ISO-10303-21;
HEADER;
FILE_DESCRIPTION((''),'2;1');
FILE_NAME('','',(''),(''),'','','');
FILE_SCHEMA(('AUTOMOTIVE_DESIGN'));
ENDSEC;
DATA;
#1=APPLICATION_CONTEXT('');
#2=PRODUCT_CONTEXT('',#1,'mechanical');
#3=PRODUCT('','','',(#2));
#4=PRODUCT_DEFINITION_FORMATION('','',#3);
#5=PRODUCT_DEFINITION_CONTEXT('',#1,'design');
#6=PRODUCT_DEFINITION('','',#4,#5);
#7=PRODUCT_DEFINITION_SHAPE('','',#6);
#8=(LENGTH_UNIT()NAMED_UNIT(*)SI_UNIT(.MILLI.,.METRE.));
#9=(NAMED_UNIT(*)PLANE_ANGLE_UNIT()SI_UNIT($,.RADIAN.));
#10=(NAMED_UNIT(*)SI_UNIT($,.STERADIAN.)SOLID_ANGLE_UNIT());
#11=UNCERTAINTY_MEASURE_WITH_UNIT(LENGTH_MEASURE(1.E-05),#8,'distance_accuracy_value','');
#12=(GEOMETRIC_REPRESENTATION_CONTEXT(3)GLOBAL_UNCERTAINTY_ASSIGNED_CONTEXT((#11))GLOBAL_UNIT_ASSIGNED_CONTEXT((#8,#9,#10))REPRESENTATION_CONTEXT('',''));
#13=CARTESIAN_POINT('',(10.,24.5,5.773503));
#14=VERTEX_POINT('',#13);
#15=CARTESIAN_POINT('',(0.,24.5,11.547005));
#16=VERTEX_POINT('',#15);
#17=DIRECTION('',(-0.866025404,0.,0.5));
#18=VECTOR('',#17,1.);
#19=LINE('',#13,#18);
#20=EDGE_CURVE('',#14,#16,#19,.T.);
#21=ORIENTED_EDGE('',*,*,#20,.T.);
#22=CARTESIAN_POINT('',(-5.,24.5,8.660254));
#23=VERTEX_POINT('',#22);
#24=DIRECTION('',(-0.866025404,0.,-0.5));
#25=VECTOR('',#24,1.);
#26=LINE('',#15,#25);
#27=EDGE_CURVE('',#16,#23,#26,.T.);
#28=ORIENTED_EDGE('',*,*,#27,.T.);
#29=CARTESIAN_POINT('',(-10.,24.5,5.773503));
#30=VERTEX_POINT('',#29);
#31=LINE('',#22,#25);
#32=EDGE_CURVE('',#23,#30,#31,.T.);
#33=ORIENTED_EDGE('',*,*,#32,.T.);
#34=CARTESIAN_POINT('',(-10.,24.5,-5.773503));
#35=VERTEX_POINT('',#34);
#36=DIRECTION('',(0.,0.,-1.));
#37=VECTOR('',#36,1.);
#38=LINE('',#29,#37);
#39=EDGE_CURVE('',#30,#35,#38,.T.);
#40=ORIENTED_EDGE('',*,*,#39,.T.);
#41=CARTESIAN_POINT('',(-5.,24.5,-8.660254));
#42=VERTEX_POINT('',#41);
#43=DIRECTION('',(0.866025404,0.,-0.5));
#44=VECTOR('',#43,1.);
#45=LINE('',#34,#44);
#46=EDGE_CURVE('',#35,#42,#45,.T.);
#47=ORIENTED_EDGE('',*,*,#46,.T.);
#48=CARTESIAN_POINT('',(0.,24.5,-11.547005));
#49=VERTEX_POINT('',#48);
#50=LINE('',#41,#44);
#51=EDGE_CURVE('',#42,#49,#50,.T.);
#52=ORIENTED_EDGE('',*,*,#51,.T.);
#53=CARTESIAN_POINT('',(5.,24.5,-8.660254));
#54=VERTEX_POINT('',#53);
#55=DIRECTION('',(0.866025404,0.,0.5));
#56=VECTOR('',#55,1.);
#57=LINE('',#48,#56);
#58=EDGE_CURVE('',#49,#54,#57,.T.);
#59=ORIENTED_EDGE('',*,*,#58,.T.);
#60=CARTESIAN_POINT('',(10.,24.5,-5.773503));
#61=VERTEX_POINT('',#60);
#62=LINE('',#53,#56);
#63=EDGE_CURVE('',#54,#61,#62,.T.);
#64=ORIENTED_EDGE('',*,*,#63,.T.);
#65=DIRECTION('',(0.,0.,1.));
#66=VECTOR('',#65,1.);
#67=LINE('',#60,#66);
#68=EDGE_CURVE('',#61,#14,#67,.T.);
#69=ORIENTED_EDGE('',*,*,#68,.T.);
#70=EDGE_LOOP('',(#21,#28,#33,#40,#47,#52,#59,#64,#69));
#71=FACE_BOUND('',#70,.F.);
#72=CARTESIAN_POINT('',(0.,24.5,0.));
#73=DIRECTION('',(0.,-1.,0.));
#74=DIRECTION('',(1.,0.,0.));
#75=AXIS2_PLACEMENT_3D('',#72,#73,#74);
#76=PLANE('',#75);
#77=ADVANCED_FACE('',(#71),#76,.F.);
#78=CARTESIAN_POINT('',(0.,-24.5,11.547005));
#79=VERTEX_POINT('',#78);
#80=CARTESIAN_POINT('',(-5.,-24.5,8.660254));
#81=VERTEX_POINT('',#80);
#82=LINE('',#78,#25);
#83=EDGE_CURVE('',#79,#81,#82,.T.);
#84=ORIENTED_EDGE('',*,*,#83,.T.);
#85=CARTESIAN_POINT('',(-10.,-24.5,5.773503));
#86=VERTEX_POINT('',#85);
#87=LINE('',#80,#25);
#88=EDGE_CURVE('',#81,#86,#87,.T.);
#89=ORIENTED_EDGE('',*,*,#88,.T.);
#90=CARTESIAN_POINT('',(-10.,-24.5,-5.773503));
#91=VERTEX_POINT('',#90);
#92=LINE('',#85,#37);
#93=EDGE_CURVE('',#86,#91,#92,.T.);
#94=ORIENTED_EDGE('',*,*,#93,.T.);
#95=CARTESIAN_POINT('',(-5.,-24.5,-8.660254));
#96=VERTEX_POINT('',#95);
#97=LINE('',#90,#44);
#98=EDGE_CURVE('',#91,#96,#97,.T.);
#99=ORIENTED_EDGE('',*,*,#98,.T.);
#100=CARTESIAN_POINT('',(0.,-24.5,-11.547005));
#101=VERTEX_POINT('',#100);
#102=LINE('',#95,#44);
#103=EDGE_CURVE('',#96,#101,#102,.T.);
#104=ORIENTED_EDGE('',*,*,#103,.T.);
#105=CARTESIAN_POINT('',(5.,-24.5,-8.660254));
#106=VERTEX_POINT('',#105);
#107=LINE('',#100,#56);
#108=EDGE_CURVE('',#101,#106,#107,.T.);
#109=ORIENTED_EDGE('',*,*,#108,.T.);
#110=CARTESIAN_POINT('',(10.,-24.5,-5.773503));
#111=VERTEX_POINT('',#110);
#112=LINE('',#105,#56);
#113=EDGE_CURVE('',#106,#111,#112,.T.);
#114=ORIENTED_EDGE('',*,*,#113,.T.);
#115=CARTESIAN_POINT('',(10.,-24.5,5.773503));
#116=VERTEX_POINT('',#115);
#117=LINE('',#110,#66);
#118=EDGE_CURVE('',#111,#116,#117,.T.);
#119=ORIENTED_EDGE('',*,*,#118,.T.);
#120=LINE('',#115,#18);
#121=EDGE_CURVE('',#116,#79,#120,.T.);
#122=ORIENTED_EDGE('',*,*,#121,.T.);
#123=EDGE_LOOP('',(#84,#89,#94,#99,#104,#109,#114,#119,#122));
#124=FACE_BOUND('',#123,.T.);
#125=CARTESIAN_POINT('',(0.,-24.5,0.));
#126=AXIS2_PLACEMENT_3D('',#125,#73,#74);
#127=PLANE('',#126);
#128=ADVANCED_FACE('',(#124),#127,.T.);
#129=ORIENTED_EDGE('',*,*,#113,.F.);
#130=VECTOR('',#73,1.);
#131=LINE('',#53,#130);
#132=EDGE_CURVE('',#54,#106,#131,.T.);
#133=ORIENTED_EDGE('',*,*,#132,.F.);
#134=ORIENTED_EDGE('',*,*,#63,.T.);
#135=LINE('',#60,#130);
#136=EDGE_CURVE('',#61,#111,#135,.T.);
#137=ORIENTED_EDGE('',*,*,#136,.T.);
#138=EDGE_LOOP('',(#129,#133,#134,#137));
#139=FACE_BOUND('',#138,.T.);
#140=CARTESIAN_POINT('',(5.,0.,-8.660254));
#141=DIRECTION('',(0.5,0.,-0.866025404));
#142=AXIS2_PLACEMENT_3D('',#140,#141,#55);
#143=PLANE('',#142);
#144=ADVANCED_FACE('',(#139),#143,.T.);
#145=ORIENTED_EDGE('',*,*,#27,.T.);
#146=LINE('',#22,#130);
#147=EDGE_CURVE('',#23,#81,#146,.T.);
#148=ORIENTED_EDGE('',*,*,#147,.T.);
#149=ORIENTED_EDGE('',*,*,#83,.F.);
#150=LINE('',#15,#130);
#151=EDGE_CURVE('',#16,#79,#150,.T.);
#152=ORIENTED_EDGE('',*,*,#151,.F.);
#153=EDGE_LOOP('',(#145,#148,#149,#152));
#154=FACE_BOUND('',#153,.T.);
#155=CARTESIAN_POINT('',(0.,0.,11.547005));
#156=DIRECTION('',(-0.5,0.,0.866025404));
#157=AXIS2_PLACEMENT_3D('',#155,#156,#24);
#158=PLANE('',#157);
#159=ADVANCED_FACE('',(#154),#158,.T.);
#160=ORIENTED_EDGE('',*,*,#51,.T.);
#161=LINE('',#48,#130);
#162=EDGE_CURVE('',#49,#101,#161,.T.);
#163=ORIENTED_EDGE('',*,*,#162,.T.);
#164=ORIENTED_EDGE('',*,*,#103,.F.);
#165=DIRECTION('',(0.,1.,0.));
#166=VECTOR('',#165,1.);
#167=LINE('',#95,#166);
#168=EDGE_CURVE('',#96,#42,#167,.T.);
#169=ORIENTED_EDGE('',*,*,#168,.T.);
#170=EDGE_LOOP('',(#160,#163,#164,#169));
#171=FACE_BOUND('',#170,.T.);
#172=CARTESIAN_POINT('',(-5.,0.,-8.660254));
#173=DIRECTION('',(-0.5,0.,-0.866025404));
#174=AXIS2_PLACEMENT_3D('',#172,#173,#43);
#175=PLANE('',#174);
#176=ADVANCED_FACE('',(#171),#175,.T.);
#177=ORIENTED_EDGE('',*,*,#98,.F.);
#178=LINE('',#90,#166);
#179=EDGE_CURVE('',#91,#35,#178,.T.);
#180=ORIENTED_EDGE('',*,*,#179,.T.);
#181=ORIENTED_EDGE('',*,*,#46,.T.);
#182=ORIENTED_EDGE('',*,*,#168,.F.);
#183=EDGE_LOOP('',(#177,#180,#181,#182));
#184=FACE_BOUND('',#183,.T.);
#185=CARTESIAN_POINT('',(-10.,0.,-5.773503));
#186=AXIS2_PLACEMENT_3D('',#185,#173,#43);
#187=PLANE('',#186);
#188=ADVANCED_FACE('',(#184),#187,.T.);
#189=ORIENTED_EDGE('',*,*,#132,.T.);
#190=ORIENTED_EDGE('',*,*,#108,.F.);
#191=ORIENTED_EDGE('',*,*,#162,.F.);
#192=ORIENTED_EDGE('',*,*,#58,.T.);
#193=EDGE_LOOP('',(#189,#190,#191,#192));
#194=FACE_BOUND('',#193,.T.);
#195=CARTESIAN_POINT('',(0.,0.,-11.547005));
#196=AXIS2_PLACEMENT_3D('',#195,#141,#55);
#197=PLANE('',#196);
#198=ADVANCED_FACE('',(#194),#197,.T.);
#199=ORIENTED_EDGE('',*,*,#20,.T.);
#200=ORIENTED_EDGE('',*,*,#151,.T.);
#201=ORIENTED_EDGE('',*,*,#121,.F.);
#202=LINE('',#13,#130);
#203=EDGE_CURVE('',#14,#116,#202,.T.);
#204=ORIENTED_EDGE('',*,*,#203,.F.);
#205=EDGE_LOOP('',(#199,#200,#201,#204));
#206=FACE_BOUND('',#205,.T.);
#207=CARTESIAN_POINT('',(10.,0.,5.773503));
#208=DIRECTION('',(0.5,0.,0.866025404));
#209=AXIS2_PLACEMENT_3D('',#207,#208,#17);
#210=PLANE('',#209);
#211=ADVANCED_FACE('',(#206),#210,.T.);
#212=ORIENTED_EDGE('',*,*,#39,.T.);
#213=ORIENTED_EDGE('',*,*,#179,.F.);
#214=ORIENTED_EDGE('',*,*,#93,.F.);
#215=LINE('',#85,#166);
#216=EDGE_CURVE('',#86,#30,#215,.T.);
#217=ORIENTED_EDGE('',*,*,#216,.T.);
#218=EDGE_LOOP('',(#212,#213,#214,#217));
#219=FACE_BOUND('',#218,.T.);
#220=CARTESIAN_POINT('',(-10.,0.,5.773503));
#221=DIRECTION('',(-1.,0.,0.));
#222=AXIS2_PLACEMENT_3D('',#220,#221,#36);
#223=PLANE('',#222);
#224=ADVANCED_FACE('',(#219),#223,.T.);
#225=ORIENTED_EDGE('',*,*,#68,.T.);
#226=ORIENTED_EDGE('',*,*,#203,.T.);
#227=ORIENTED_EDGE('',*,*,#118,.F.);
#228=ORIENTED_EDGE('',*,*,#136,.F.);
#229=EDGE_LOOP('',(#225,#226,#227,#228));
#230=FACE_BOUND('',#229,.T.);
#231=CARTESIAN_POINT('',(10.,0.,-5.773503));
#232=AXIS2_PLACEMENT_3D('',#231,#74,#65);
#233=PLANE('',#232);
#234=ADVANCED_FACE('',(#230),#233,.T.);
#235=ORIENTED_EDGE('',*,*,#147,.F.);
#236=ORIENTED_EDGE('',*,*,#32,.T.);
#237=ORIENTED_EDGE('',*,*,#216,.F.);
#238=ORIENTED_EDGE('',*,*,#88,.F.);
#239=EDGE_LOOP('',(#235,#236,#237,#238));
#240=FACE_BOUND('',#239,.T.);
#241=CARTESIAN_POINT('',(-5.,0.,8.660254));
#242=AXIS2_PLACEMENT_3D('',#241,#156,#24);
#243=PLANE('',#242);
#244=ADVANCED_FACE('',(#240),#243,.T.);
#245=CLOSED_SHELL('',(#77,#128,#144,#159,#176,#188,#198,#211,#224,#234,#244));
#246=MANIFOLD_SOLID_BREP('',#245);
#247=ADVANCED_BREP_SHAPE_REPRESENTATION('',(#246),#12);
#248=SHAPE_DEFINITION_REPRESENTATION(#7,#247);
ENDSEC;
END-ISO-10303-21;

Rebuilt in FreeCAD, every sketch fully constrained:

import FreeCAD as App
import Part
import Sketcher

V = App.Vector
Q = App.Units.Quantity


def add_polygon(sketch, points):
    """Adds a closed chain of lines whose ends are joined by coincident constraints."""
    first, n = sketch.GeometryCount, len(points)
    for a, b in zip(points, points[1:] + points[:1]):
        sketch.addGeometry(Part.LineSegment(App.Vector(*a, 0), App.Vector(*b, 0)), False)
    for i in range(n):
        sketch.addConstraint(Sketcher.Constraint("Coincident", first + i, 2, first + (i + 1) % n, 1))

doc = App.newDocument("Part")
body = doc.addObject("PartDesign::Body", "Body")

# Sketch on XZ plane
sketch1 = body.newObject("Sketcher::SketchObject", "Sketch")
sketch1.AttachmentSupport = (doc.getObject("XZ_Plane"), [""])
sketch1.MapMode = "FlatFace"
add_polygon(sketch1, [(-5, -9), (0, -12), (5, -9), (10, -6), (10, 6), (0, 12), (-5, 9), (-10, 6), (-10, -6)])  # lines 0-8
sketch1.addConstraint(Sketcher.Constraint("Vertical", 3))
sketch1.addConstraint(Sketcher.Constraint("Vertical", 7))
sketch1.addConstraint(Sketcher.Constraint("Symmetric", 0, 2, 4, 2, -1, 1))
sketch1.addConstraint(Sketcher.Constraint("Symmetric", 1, 2, 5, 2, -1, 1))
sketch1.addConstraint(Sketcher.Constraint("Symmetric", 2, 2, 6, 2, -1, 1))
sketch1.addConstraint(Sketcher.Constraint("Symmetric", 1, 2, 8, 2, -2))
sketch1.addConstraint(Sketcher.Constraint("PointOnObject", 0, 2, -2))
sketch1.addConstraint(Sketcher.Constraint("Parallel", 1, 2))
sketch1.addConstraint(Sketcher.Constraint("Parallel", 0, 4))
sketch1.addConstraint(Sketcher.Constraint("Parallel", 4, 8))
sketch1.addConstraint(Sketcher.Constraint("Equal", 1, 2))
sketch1.addConstraint(Sketcher.Constraint("Angle", 0, Q("-30 deg")))
sketch1.addConstraint(Sketcher.Constraint("DistanceX", -1, 1, 1, 2, 5.0))
sketch1.addConstraint(Sketcher.Constraint("DistanceY", 3, 1, 3, 2, 11.547005))
pad1 = body.newObject("PartDesign::Pad", "Pad")
pad1.Profile = sketch1
pad1.Length = 49
pad1.Midplane = True

doc.recompute()
